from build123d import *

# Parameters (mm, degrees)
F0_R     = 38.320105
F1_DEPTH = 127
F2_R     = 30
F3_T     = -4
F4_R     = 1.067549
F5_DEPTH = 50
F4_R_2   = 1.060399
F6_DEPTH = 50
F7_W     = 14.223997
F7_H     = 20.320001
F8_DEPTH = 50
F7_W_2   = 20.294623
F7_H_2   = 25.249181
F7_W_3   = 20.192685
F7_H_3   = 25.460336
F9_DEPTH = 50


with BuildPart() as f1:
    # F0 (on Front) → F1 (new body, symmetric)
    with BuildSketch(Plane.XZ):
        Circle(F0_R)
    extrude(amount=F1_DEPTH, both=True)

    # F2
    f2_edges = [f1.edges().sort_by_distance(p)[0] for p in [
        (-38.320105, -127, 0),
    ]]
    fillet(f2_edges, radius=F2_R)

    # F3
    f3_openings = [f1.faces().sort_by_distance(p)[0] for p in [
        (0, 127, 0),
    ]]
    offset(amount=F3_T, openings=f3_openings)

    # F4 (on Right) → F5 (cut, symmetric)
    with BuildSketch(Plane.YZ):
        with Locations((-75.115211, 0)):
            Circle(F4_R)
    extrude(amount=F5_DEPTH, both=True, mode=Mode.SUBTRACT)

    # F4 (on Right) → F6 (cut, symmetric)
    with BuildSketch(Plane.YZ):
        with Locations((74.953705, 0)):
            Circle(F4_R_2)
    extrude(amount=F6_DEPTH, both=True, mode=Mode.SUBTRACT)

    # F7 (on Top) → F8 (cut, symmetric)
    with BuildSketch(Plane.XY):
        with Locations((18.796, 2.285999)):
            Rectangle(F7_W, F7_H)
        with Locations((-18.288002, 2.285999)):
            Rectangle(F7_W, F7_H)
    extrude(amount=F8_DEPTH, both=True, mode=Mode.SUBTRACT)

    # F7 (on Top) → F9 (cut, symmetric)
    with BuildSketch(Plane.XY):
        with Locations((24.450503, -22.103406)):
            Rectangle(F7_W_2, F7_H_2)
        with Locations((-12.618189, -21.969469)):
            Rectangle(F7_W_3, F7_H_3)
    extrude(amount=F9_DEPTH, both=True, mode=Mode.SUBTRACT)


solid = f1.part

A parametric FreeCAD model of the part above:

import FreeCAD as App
import Part
import Sketcher
from FreeCAD import Vector


def edges_at(feature, points):
    """Names of the edges that pass closest to the given points."""
    edges = feature.Shape.Edges
    near = lambda p: min(range(len(edges)), key=lambda i: edges[i].distToShape(Part.Vertex(*p))[0])
    return sorted({f"Edge{near(p) + 1}" for p in points})


def faces_at(feature, points):
    """Names of the faces that lie closest to the given points."""
    faces = feature.Shape.Faces
    near = lambda p: min(range(len(faces)), key=lambda i: faces[i].distToShape(Part.Vertex(*p))[0])
    return sorted({f"Face{near(p) + 1}" for p in points})


def add_polygon(sketch, points):
    """Adds a closed chain of lines whose ends are joined by coincident constraints."""
    first, n = sketch.GeometryCount, len(points)
    for a, b in zip(points, points[1:] + points[:1]):
        sketch.addGeometry(Part.LineSegment(App.Vector(*a, 0), App.Vector(*b, 0)), False)
    for i in range(n):
        sketch.addConstraint(Sketcher.Constraint("Coincident", first + i, 2, first + (i + 1) % n, 1))

doc = App.newDocument("Part")
body = doc.addObject("PartDesign::Body", "Body")

sketch1 = body.newObject("Sketcher::SketchObject", "Sketch")
sketch1.AttachmentSupport = (doc.getObject("XZ_Plane"), [""])
sketch1.MapMode = "FlatFace"
sketch1.addGeometry(Part.Circle(Vector(0, 0, 0), Vector(0, 0, 1), 38), False)
sketch1.addConstraint([
    Sketcher.Constraint("Coincident", 0, 3, -1, 1),
    Sketcher.Constraint("Diameter", 0, 76.64021),
])
pad1 = body.newObject("PartDesign::Pad", "Pad")
pad1.Profile = sketch1
pad1.Length = 254
pad1.Midplane = True
doc.recompute()

fillet = body.newObject("PartDesign::Fillet", "Fillet")
fillet.Base = (pad1, edges_at(pad1, [(-38.32, -127, 0)]))
fillet.Radius = 30
doc.recompute()

thickness = body.newObject("PartDesign::Thickness", "Thickness")
thickness.Base = (fillet, faces_at(fillet, [(0, 127, 0)]))
thickness.Value = 4
thickness.Reversed = True
thickness.Join = "Arc"

sketch2 = body.newObject("Sketcher::SketchObject", "Sketch001")
sketch2.AttachmentSupport = (doc.getObject("YZ_Plane"), [""])
sketch2.MapMode = "FlatFace"
sketch2.addGeometry(Part.Circle(Vector(-75.1, 0, 0), Vector(0, 0, 1), 1.1), False)
sketch2.addConstraint([
    Sketcher.Constraint("PointOnObject", 0, 3, -1),
    Sketcher.Constraint("Diameter", 0, 2.135098),
    Sketcher.Constraint("DistanceX", 0, 3, -1, 1, 75.115211),
])
pocket1 = body.newObject("PartDesign::Pocket", "Pocket")
pocket1.Profile = sketch2
pocket1.Length = 100
pocket1.Midplane = True

sketch3 = body.newObject("Sketcher::SketchObject", "Sketch002")
sketch3.AttachmentSupport = (doc.getObject("YZ_Plane"), [""])
sketch3.MapMode = "FlatFace"
sketch3.addGeometry(Part.Circle(Vector(75, 0, 0), Vector(0, 0, 1), 1.1), False)
sketch3.addConstraint([
    Sketcher.Constraint("PointOnObject", 0, 3, -1),
    Sketcher.Constraint("Diameter", 0, 2.120798),
    Sketcher.Constraint("DistanceX", -1, 1, 0, 3, 74.953705),
])
pocket2 = body.newObject("PartDesign::Pocket", "Pocket001")
pocket2.Profile = sketch3
pocket2.Length = 100
pocket2.Midplane = True

sketch4 = body.newObject("Sketcher::SketchObject", "Sketch003")
sketch4.AttachmentSupport = (doc.getObject("XY_Plane"), [""])
sketch4.MapMode = "FlatFace"
add_polygon(sketch4, [(12, 12), (12, -8), (26, -8), (26, 12)])
add_polygon(sketch4, [(-25, 12), (-25, -8), (-11, -8), (-11, 12)])
sketch4.addConstraint([
    Sketcher.Constraint("Vertical", 0),
    Sketcher.Constraint("Horizontal", 1),
    Sketcher.Constraint("Vertical", 2),
    Sketcher.Constraint("Horizontal", 3),
    Sketcher.Constraint("Vertical", 4),
    Sketcher.Constraint("Horizontal", 5),
    Sketcher.Constraint("Vertical", 6),
    Sketcher.Constraint("Horizontal", 7),
    Sketcher.Constraint("Horizontal", 1, 2, 4, 2),
    Sketcher.Constraint("Horizontal", 3, 2, 6, 2),
    Sketcher.Constraint("Equal", 3, 5),
    Sketcher.Constraint("DistanceY", 0, 2, 0, 1, 20.320001),
    Sketcher.Constraint("DistanceX", 4, 2, -1, 1, 25.400001),
    Sketcher.Constraint("DistanceX", -1, 1, 0, 2, 11.684002),
    Sketcher.Constraint("DistanceY", 0, 2, -1, 1, 7.874002),
    Sketcher.Constraint("DistanceX", -1, 1, 1, 2, 25.907999),
])
pocket3 = body.newObject("PartDesign::Pocket", "Pocket002")
pocket3.Profile = sketch4
pocket3.Length = 100
pocket3.Midplane = True

sketch5 = body.newObject("Sketcher::SketchObject", "Sketch004")
sketch5.AttachmentSupport = (doc.getObject("XY_Plane"), [""])
sketch5.MapMode = "FlatFace"
add_polygon(sketch5, [(14, -9), (14, -35), (35, -35), (35, -9)])
add_polygon(sketch5, [(-23, -9), (-23, -35), (-3, -35), (-3, -9)])
sketch5.addConstraint([
    Sketcher.Constraint("Vertical", 0),
    Sketcher.Constraint("Horizontal", 1),
    Sketcher.Constraint("Vertical", 2),
    Sketcher.Constraint("Horizontal", 3),
    Sketcher.Constraint("Vertical", 4),
    Sketcher.Constraint("Horizontal", 5),
    Sketcher.Constraint("Vertical", 6),
    Sketcher.Constraint("Horizontal", 7),
    Sketcher.Constraint("DistanceY", 0, 2, 0, 1, 25.249181),
    Sketcher.Constraint("DistanceY", 6, 2, -1, 1, 9.239301),
    Sketcher.Constraint("DistanceX", 1, 1, 1, 2, 20.294623),
    Sketcher.Constraint("DistanceX", 5, 1, 5, 2, 20.192685),
    Sketcher.Constraint("DistanceY", 4, 2, 4, 1, 25.460336),
    Sketcher.Constraint("DistanceX", -1, 1, 0, 2, 14.303192),
    Sketcher.Constraint("DistanceX", 4, 2, -1, 1, 22.714531),
    Sketcher.Constraint("DistanceY", 0, 2, 4, 2, 0.02836),
])
pocket4 = body.newObject("PartDesign::Pocket", "Pocket003")
pocket4.Profile = sketch5
pocket4.Length = 100
pocket4.Midplane = True

doc.recompute()
